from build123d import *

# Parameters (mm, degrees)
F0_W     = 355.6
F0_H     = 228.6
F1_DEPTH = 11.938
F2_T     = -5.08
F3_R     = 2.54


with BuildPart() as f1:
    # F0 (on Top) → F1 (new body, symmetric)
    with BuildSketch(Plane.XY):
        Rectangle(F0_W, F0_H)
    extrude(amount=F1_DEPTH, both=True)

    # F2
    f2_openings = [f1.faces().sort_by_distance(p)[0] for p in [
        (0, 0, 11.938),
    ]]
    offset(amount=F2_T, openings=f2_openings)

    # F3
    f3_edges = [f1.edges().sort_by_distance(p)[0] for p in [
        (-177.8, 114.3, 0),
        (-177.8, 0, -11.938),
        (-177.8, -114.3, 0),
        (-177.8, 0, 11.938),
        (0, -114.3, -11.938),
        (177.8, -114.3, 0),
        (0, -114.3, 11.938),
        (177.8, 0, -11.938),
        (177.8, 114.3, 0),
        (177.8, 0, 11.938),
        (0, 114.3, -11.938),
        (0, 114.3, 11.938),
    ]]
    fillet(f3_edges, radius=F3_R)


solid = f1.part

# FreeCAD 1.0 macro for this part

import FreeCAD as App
import Part
import Sketcher
from FreeCAD import Vector
Q = App.Units.Quantity


def edges_at(feature, points):
    """Names of the edges that pass closest to the given points."""
    edges = feature.Shape.Edges
    near = lambda p: min(range(len(edges)), key=lambda i: edges[i].distToShape(Part.Vertex(*p))[0])
    return sorted({f"Edge{near(p) + 1}" for p in points})


def faces_at(feature, points):
    """Names of the faces that lie closest to the given points."""
    faces = feature.Shape.Faces
    near = lambda p: min(range(len(faces)), key=lambda i: faces[i].distToShape(Part.Vertex(*p))[0])
    return sorted({f"Face{near(p) + 1}" for p in points})


def add_polygon(sketch, points):
    """Adds a closed chain of lines whose ends are joined by coincident constraints."""
    first, n = sketch.GeometryCount, len(points)
    for a, b in zip(points, points[1:] + points[:1]):
        sketch.addGeometry(Part.LineSegment(App.Vector(*a, 0), App.Vector(*b, 0)), False)
    for i in range(n):
        sketch.addConstraint(Sketcher.Constraint("Coincident", first + i, 2, first + (i + 1) % n, 1))

doc = App.newDocument("Part")
params = doc.addObject("Spreadsheet::Sheet", "Params")
for row, (alias, value) in enumerate([
    ("sketch1_width", "14 in"),
    ("sketch1_height", "9 in"),
    ("pad1_length", "0.94 in"),
    ("thickness_wall", "0.2 in"),
    ("fillet_radius", "0.1 in"),
], start=1):
    params.set(f"A{row}", alias)
    params.set(f"B{row}", "=" + value)
    params.setAlias(f"B{row}", alias)

body = doc.addObject("PartDesign::Body", "Body")

sketch1 = body.newObject("Sketcher::SketchObject", "Sketch")
sketch1.AttachmentSupport = (doc.getObject("XY_Plane"), [""])
sketch1.MapMode = "FlatFace"
add_polygon(sketch1, [(-178, 114), (-178, -114), (178, -114), (178, 114)])
sketch1.addConstraint([
    Sketcher.Constraint("Vertical", 0),
    Sketcher.Constraint("Horizontal", 1),
    Sketcher.Constraint("Vertical", 2),
    Sketcher.Constraint("Horizontal", 3),
    Sketcher.Constraint("Symmetric", 0, 2, 2, 2, -1, 1),
    Sketcher.Constraint("DistanceX", 1, 1, 1, 2, Q("14 in")),
    Sketcher.Constraint("DistanceY", 0, 2, 0, 1, Q("9 in")),
])
sketch1.setExpression("Constraints[9]", "Params.sketch1_width")
sketch1.setExpression("Constraints[10]", "Params.sketch1_height")
pad1 = body.newObject("PartDesign::Pad", "Pad")
pad1.Profile = sketch1
pad1.setExpression("Length", "Params.pad1_length")
pad1.Midplane = True
doc.recompute()

thickness = body.newObject("PartDesign::Thickness", "Thickness")
thickness.Base = (pad1, faces_at(pad1, [(0, 0, 11.938)]))
thickness.setExpression("Value", "Params.thickness_wall")
thickness.Reversed = True
thickness.Join = "Arc"
doc.recompute()

fillet = body.newObject("PartDesign::Fillet", "Fillet")
fillet.Base = (thickness, edges_at(thickness, [
    (-177.8, 114.3, 0),
    (-177.8, 0, -11.938),
    (-177.8, -114.3, 0),
    (-177.8, 0, 11.938),
    (0, -114.3, -11.938),
    (177.8, -114.3, 0),
    (0, -114.3, 11.938),
    (177.8, 0, -11.938),
    (177.8, 114.3, 0),
    (177.8, 0, 11.938),
    (0, 114.3, -11.938),
    (0, 114.3, 11.938),
]))
fillet.setExpression("Radius", "Params.fillet_radius")

doc.recompute()
